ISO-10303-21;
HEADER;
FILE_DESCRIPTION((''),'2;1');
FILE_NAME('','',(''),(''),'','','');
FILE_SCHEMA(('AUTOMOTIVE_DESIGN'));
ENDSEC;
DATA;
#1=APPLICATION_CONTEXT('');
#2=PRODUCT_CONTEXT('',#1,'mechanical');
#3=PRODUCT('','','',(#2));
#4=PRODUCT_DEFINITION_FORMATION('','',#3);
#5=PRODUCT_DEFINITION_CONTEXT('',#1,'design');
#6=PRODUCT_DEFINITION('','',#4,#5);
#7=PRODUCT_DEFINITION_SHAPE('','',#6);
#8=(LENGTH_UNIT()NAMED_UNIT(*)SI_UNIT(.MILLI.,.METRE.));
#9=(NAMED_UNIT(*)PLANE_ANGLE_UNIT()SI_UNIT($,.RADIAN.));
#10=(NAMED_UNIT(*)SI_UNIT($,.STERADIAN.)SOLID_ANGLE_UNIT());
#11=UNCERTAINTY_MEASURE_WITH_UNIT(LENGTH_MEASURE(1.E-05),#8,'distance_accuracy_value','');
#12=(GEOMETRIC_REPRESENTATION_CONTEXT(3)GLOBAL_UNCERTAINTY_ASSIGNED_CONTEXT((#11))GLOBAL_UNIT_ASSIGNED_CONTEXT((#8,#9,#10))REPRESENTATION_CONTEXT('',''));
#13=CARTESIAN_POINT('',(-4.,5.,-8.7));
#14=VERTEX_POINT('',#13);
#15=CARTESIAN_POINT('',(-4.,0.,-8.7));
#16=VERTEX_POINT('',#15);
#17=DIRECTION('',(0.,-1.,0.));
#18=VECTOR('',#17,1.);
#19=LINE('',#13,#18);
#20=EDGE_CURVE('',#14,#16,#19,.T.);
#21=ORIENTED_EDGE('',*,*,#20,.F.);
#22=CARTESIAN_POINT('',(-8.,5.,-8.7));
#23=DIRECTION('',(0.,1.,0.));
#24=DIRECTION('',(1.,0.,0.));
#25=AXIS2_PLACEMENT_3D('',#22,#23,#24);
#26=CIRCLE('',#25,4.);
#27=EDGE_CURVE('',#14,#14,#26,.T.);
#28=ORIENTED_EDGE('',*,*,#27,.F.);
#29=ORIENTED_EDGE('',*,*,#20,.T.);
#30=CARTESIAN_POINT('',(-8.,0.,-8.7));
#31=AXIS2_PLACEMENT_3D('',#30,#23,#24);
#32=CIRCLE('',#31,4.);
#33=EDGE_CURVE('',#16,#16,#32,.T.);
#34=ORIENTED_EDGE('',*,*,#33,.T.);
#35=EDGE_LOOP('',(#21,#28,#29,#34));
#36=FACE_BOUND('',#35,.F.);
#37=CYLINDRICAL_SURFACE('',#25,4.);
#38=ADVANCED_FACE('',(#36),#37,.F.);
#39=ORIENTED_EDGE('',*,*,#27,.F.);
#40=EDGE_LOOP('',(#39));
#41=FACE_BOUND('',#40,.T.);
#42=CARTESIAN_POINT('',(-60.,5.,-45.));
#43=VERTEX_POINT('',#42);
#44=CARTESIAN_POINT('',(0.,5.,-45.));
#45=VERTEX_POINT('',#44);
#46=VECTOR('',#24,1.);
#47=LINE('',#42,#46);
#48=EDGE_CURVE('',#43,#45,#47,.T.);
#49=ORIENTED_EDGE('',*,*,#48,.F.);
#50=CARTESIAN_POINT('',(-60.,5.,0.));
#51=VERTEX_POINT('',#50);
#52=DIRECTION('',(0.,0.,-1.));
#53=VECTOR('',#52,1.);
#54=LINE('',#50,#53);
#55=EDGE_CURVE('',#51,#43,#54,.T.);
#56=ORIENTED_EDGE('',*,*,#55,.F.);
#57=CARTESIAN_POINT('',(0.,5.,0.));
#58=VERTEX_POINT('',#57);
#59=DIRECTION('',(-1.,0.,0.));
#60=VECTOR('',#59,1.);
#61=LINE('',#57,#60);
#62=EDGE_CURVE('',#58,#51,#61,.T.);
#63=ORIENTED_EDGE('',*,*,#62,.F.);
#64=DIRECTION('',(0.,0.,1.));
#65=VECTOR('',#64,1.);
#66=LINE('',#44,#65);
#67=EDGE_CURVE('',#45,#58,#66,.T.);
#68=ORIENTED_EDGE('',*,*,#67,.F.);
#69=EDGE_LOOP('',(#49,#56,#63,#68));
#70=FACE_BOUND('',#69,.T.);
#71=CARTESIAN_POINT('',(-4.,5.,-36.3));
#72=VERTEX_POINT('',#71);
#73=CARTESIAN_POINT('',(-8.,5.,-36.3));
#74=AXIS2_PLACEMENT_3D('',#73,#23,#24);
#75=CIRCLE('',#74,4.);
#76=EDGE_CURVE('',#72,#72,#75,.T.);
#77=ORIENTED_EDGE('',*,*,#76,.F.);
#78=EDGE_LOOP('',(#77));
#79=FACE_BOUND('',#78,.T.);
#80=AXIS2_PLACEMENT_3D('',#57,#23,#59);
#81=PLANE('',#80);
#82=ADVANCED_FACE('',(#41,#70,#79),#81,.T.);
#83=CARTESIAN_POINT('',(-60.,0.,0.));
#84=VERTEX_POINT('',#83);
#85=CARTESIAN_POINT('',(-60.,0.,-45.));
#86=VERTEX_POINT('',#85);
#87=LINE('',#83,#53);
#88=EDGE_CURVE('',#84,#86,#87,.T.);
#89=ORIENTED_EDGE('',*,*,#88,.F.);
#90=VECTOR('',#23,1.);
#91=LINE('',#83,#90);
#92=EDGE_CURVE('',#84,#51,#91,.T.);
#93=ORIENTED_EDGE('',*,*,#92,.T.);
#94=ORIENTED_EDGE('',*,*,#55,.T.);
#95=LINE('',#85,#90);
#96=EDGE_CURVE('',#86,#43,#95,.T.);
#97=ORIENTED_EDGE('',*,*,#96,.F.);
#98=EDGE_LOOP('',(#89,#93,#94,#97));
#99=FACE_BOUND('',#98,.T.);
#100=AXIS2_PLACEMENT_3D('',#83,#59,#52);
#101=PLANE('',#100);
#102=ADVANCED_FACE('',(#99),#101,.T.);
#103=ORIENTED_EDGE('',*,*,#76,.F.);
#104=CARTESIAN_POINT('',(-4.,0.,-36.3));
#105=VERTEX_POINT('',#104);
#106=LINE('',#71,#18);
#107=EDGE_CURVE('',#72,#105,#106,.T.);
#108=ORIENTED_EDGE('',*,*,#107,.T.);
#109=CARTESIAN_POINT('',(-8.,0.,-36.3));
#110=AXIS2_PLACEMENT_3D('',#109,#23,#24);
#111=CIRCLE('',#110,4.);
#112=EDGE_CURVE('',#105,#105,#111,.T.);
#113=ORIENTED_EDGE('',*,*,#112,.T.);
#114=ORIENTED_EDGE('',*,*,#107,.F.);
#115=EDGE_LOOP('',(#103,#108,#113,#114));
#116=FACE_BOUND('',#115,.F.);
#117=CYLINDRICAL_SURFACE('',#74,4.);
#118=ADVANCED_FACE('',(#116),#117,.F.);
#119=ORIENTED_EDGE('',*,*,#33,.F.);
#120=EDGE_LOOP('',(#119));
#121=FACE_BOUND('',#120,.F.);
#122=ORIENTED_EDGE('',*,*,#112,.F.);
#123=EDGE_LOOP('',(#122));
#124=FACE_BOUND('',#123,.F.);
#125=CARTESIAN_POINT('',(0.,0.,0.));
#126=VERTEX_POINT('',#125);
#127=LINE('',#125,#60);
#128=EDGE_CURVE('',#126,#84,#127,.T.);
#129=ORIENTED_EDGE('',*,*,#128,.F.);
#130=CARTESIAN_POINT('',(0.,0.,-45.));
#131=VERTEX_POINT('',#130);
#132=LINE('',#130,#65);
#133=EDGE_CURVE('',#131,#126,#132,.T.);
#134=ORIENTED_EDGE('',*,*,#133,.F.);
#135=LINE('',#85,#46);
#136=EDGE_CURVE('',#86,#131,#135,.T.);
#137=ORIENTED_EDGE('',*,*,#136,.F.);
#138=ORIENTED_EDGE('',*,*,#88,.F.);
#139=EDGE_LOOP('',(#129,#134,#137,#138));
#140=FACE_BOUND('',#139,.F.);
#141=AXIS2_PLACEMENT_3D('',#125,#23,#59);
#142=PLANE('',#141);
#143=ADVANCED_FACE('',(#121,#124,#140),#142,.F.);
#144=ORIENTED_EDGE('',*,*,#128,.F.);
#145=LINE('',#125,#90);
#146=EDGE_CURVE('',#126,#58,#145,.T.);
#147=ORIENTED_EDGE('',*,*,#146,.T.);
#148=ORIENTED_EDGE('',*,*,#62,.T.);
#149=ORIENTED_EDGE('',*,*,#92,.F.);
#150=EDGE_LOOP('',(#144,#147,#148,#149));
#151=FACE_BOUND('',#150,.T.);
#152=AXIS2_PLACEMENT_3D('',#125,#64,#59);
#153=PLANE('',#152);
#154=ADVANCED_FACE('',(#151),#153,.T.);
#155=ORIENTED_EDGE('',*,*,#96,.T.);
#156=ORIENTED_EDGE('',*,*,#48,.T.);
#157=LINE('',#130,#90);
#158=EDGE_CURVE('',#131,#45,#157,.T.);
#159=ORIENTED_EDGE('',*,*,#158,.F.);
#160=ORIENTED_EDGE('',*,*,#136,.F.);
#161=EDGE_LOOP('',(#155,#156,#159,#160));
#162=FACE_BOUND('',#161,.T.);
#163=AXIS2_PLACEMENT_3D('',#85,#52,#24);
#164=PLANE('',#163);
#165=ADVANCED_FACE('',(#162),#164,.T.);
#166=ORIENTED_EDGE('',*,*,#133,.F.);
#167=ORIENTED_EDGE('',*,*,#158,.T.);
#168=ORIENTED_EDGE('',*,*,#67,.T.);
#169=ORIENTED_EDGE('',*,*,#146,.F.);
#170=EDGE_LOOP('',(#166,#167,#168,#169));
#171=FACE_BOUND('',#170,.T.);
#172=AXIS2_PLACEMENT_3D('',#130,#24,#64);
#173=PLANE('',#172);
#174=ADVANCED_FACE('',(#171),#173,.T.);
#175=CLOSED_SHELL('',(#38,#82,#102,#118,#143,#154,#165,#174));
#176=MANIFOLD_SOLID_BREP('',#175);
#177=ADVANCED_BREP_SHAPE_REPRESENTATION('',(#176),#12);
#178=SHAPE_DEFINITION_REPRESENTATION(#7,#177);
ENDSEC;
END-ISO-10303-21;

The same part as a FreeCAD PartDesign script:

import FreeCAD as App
import Part
import Sketcher

V = App.Vector


def add_polygon(sketch, points):
    """Adds a closed chain of lines whose ends are joined by coincident constraints."""
    first, n = sketch.GeometryCount, len(points)
    for a, b in zip(points, points[1:] + points[:1]):
        sketch.addGeometry(Part.LineSegment(App.Vector(*a, 0), App.Vector(*b, 0)), False)
    for i in range(n):
        sketch.addConstraint(Sketcher.Constraint("Coincident", first + i, 2, first + (i + 1) % n, 1))

doc = App.newDocument("Part")
params = doc.addObject("Spreadsheet::Sheet", "Params")
for row, (alias, value) in enumerate([
    ("sketch1_width", "60 mm"),
    ("sketch1_height", "45 mm"),
    ("pad1_length", "5 mm"),
    ("sketch2_diameter", "8 mm"),
], start=1):
    params.set(f"A{row}", alias)
    params.set(f"B{row}", "=" + value)
    params.setAlias(f"B{row}", alias)

body = doc.addObject("PartDesign::Body", "Body")

# Sketch on XZ plane
sketch1 = body.newObject("Sketcher::SketchObject", "Sketch")
sketch1.AttachmentSupport = (doc.getObject("XZ_Plane"), [""])
sketch1.MapMode = "FlatFace"
add_polygon(sketch1, [(-60, 0), (0, 0), (0, -45), (-60, -45)])  # lines 0-3
sketch1.addConstraint([
    Sketcher.Constraint("Horizontal", 0),
    Sketcher.Constraint("Vertical", 1),
    Sketcher.Constraint("Horizontal", 2),
    Sketcher.Constraint("Vertical", 3),
    Sketcher.Constraint("Coincident", 0, 2, -1, 1),
    Sketcher.Constraint("DistanceX", 0, 1, 0, 2, 60.0),
    Sketcher.Constraint("DistanceY", 1, 2, 1, 1, 45.0),
])
sketch1.setExpression("Constraints[9]", "Params.sketch1_width")
sketch1.setExpression("Constraints[10]", "Params.sketch1_height")
pad1 = body.newObject("PartDesign::Pad", "Pad")
pad1.Profile = sketch1
pad1.setExpression("Length", "Params.pad1_length")
pad1.Reversed = True

# Sketch on XZ plane
sketch2 = body.newObject("Sketcher::SketchObject", "Sketch001")
sketch2.AttachmentSupport = (doc.getObject("XZ_Plane"), [""])
sketch2.MapMode = "FlatFace"
sketch2.AttachmentOffset = App.Placement(V(0, 0, -5), App.Rotation())
sketch2.addGeometry([
    Part.Circle(V(-8, -36.3, 0), V(0, 0, 1), 4),
    Part.Circle(V(-8, -8.7, 0), V(0, 0, 1), 4),
], False)
sketch2.addConstraint([
    Sketcher.Constraint("Equal", 0, 1),
    Sketcher.Constraint("Vertical", 0, 3, 1, 3),
    Sketcher.Constraint("Diameter", 0, 8.0),
    Sketcher.Constraint("DistanceX", 0, 3, -1, 1, 8.0),
    Sketcher.Constraint("DistanceY", 1, 3, -1, 1, 8.7),
    Sketcher.Constraint("DistanceY", 0, 3, -1, 1, 36.3),
])
sketch2.setExpression("Constraints[2]", "Params.sketch2_diameter")
pocket1 = body.newObject("PartDesign::Pocket", "Pocket")
pocket1.Profile = sketch2
pocket1.Type = "UpToFirst"
pocket1.Reversed = True

doc.recompute()
